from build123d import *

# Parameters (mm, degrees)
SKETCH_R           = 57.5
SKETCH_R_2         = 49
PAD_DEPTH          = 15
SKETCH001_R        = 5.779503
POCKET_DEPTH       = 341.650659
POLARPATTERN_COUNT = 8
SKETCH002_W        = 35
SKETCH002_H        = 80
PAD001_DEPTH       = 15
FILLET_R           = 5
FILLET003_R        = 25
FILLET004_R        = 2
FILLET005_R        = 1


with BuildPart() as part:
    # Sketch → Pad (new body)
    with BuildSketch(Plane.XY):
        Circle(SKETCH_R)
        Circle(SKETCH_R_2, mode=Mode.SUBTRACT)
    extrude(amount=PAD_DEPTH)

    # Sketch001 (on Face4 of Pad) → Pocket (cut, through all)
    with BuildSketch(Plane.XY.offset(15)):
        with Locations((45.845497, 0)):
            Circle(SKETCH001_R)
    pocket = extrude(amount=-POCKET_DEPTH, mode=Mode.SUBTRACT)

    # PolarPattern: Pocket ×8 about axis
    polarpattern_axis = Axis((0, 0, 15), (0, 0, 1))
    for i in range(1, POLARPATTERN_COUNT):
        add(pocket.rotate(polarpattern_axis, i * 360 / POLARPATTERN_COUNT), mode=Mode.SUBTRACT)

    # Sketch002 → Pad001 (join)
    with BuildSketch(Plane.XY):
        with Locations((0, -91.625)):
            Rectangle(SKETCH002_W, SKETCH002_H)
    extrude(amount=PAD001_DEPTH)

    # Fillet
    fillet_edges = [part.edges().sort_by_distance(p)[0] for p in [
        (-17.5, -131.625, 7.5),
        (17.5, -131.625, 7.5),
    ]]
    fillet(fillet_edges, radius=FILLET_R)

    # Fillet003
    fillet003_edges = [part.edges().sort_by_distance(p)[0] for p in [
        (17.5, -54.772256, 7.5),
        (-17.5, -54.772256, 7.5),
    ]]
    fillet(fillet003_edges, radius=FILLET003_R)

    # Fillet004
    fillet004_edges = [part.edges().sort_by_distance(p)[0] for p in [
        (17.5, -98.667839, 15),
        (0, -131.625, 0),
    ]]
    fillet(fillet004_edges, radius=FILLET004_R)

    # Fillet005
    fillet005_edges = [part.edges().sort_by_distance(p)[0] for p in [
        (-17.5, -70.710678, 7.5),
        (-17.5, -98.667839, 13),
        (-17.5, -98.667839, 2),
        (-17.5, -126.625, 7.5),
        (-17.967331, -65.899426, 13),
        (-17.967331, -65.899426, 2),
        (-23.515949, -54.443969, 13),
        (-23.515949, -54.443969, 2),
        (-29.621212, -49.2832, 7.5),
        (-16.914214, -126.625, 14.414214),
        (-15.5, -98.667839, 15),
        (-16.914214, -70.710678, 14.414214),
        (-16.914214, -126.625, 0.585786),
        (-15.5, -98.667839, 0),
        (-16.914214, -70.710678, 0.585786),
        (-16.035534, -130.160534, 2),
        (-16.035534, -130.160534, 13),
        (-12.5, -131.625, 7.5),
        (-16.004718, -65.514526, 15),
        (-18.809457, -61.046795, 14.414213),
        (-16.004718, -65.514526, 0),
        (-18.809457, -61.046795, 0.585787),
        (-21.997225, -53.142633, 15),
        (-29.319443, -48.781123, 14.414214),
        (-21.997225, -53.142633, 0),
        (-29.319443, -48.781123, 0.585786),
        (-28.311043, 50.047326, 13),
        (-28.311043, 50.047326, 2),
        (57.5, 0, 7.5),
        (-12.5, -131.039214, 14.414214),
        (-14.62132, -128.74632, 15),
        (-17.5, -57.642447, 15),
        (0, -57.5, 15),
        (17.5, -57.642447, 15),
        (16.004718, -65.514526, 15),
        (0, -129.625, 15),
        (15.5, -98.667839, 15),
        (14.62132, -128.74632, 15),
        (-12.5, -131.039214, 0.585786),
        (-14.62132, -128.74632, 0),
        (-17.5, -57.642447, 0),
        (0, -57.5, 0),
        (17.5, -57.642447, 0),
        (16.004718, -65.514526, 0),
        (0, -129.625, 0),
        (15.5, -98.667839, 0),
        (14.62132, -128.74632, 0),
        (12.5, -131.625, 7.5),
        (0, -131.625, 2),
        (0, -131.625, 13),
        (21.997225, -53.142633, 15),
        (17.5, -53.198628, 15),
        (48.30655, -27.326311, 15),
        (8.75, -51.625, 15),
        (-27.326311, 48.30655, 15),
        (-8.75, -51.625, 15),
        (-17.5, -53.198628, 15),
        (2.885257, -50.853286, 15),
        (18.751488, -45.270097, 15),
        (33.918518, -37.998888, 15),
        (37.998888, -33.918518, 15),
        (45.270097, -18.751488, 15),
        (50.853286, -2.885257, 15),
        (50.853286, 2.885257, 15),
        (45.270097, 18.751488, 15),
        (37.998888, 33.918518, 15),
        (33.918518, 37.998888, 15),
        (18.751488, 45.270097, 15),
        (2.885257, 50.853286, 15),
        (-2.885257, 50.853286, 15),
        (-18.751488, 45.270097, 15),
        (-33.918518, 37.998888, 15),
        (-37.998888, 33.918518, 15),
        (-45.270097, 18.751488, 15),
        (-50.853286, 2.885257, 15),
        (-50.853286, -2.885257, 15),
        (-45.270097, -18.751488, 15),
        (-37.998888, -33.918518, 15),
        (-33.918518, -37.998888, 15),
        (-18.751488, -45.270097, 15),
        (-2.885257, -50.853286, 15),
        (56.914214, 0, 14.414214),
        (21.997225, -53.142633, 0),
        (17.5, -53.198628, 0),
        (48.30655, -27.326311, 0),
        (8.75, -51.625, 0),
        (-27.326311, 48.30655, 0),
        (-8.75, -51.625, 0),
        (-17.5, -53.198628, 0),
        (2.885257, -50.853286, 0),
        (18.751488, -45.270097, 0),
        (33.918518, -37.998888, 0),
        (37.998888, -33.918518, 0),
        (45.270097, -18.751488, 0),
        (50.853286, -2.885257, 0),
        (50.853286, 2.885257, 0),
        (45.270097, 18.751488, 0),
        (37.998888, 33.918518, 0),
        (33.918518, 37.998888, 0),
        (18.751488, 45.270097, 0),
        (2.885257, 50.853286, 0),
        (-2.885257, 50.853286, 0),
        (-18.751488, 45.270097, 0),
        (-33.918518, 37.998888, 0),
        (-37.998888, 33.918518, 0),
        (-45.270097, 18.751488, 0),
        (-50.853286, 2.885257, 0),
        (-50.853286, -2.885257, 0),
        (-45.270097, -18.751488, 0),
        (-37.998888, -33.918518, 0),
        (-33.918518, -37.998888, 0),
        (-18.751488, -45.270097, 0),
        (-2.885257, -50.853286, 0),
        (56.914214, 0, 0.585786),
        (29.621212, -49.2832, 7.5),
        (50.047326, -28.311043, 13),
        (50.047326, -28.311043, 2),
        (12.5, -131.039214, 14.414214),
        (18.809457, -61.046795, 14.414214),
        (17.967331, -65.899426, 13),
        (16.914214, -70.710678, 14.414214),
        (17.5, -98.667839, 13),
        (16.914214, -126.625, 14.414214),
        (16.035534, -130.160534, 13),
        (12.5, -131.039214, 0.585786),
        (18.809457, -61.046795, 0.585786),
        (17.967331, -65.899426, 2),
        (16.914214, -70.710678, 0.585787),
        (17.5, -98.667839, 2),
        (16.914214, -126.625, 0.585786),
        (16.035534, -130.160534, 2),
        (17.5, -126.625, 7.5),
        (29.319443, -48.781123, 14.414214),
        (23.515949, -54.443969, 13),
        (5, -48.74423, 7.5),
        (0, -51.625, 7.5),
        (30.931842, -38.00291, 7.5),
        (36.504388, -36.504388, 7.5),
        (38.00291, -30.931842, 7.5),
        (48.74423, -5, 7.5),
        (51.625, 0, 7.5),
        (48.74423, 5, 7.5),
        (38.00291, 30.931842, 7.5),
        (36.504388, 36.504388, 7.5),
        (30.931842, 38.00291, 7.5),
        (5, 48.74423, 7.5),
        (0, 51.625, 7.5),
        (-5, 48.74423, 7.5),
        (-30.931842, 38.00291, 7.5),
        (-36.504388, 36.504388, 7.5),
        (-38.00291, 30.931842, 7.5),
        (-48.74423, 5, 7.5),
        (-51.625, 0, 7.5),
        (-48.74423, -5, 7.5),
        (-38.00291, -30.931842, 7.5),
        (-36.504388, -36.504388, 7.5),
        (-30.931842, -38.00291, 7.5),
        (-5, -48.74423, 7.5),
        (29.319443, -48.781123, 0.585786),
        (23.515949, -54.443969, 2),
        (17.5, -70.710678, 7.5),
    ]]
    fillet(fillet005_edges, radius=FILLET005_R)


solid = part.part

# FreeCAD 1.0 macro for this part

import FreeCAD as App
import Part
import Sketcher

V = App.Vector


def edges_at(feature, points):
    """Names of the edges that pass closest to the given points."""
    edges = feature.Shape.Edges
    near = lambda p: min(range(len(edges)), key=lambda i: edges[i].distToShape(Part.Vertex(*p))[0])
    return sorted({f"Edge{near(p) + 1}" for p in points})

doc = App.newDocument("Part")
body = doc.addObject("PartDesign::Body", "Body")

sketch1 = body.newObject("Sketcher::SketchObject", "Sketch")
sketch1.AttachmentSupport = (doc.getObject("XY_Plane"), [""])
sketch1.MapMode = "FlatFace"
sketch1.addGeometry(Part.Circle(V(0, 0, 0), V(0, 0, 1), 58), False)
sketch1.addGeometry(Part.Circle(V(0, 0, 0), V(0, 0, 1), 49), False)
sketch1.addConstraint(Sketcher.Constraint("Coincident", 0, 3, -1, 1))
sketch1.addConstraint(Sketcher.Constraint("Coincident", 1, 3, -1, 1))
sketch1.addConstraint(Sketcher.Constraint("Diameter", 0, 115.0))
sketch1.addConstraint(Sketcher.Constraint("Diameter", 1, 98.0))
pad1 = body.newObject("PartDesign::Pad", "Pad")
pad1.Profile = sketch1
pad1.Length = 15

sketch2 = body.newObject("Sketcher::SketchObject", "Sketch001")
sketch2.AttachmentSupport = (doc.getObject("XY_Plane"), [""])
sketch2.MapMode = "FlatFace"
sketch2.AttachmentOffset = App.Placement(V(0, 0, 15), App.Rotation())
sketch2.addGeometry(Part.Circle(V(46, 0, 0), V(0, 0, 1), 6), False)
sketch2.addConstraint(Sketcher.Constraint("PointOnObject", 0, 3, -1))
sketch2.addConstraint(Sketcher.Constraint("Diameter", 0, 11.559006))
sketch2.addConstraint(Sketcher.Constraint("DistanceX", -1, 1, 0, 3, 45.845497))
pocket1 = body.newObject("PartDesign::Pocket", "Pocket")
pocket1.Profile = sketch2
pocket1.Type = "ThroughAll"
doc.recompute()

polarpattern = body.newObject("PartDesign::PolarPattern", "PolarPattern")
polarpattern.Originals = [pocket1]
polarpattern.Axis = (doc.getObject("Z_Axis"), [""])
polarpattern.Angle = 360
polarpattern.Occurrences = 8
body.Tip = polarpattern

sketch3 = body.newObject("Sketcher::SketchObject", "Sketch002")
sketch3.AttachmentSupport = (doc.getObject("XY_Plane"), [""])
sketch3.MapMode = "FlatFace"
sketch3.addGeometry(Part.LineSegment(V(-18, -52, 0), V(-18, -132, 0)), False)
sketch3.addGeometry(Part.LineSegment(V(-18, -132, 0), V(18, -132, 0)), False)
sketch3.addGeometry(Part.LineSegment(V(18, -132, 0), V(18, -52, 0)), False)
sketch3.addGeometry(Part.LineSegment(V(18, -52, 0), V(-18, -52, 0)), False)
sketch3.addConstraint(Sketcher.Constraint("Coincident", 0, 2, 1, 1))
sketch3.addConstraint(Sketcher.Constraint("Coincident", 1, 2, 2, 1))
sketch3.addConstraint(Sketcher.Constraint("Coincident", 2, 2, 3, 1))
sketch3.addConstraint(Sketcher.Constraint("Coincident", 3, 2, 0, 1))
sketch3.addConstraint(Sketcher.Constraint("Vertical", 0))
sketch3.addConstraint(Sketcher.Constraint("Horizontal", 1))
sketch3.addConstraint(Sketcher.Constraint("Vertical", 2))
sketch3.addConstraint(Sketcher.Constraint("Horizontal", 3))
sketch3.addConstraint(Sketcher.Constraint("DistanceX", 1, 1, 1, 2, 35.0))
sketch3.addConstraint(Sketcher.Constraint("DistanceY", 0, 2, 0, 1, 80.0))
sketch3.addConstraint(Sketcher.Constraint("DistanceX", 0, 2, -1, 1, 17.5))
sketch3.addConstraint(Sketcher.Constraint("DistanceY", 0, 2, -1, 1, 131.625))
pad2 = body.newObject("PartDesign::Pad", "Pad001")
pad2.Profile = sketch3
pad2.Length = 15
doc.recompute()

fillet = body.newObject("PartDesign::Fillet", "Fillet")
fillet.Base = (pad2, edges_at(pad2, [(-17.5, -131.625, 7.5), (17.5, -131.625, 7.5)]))
fillet.Radius = 5
doc.recompute()

fillet2 = body.newObject("PartDesign::Fillet", "Fillet001")
fillet2.Base = (fillet, edges_at(fillet, [(17.5, -54.772, 7.5), (-17.5, -54.772, 7.5)]))
fillet2.Radius = 25
doc.recompute()

fillet3 = body.newObject("PartDesign::Fillet", "Fillet002")
fillet3.Base = (fillet2, edges_at(fillet2, [(17.5, -98.668, 15), (0, -131.625, 0)]))
fillet3.Radius = 2
doc.recompute()

fillet4 = body.newObject("PartDesign::Fillet", "Fillet003")
fillet4.Base = (fillet3, ["Edge1"])
fillet4.UseAllEdges = True
fillet4.Radius = 1

doc.recompute()
